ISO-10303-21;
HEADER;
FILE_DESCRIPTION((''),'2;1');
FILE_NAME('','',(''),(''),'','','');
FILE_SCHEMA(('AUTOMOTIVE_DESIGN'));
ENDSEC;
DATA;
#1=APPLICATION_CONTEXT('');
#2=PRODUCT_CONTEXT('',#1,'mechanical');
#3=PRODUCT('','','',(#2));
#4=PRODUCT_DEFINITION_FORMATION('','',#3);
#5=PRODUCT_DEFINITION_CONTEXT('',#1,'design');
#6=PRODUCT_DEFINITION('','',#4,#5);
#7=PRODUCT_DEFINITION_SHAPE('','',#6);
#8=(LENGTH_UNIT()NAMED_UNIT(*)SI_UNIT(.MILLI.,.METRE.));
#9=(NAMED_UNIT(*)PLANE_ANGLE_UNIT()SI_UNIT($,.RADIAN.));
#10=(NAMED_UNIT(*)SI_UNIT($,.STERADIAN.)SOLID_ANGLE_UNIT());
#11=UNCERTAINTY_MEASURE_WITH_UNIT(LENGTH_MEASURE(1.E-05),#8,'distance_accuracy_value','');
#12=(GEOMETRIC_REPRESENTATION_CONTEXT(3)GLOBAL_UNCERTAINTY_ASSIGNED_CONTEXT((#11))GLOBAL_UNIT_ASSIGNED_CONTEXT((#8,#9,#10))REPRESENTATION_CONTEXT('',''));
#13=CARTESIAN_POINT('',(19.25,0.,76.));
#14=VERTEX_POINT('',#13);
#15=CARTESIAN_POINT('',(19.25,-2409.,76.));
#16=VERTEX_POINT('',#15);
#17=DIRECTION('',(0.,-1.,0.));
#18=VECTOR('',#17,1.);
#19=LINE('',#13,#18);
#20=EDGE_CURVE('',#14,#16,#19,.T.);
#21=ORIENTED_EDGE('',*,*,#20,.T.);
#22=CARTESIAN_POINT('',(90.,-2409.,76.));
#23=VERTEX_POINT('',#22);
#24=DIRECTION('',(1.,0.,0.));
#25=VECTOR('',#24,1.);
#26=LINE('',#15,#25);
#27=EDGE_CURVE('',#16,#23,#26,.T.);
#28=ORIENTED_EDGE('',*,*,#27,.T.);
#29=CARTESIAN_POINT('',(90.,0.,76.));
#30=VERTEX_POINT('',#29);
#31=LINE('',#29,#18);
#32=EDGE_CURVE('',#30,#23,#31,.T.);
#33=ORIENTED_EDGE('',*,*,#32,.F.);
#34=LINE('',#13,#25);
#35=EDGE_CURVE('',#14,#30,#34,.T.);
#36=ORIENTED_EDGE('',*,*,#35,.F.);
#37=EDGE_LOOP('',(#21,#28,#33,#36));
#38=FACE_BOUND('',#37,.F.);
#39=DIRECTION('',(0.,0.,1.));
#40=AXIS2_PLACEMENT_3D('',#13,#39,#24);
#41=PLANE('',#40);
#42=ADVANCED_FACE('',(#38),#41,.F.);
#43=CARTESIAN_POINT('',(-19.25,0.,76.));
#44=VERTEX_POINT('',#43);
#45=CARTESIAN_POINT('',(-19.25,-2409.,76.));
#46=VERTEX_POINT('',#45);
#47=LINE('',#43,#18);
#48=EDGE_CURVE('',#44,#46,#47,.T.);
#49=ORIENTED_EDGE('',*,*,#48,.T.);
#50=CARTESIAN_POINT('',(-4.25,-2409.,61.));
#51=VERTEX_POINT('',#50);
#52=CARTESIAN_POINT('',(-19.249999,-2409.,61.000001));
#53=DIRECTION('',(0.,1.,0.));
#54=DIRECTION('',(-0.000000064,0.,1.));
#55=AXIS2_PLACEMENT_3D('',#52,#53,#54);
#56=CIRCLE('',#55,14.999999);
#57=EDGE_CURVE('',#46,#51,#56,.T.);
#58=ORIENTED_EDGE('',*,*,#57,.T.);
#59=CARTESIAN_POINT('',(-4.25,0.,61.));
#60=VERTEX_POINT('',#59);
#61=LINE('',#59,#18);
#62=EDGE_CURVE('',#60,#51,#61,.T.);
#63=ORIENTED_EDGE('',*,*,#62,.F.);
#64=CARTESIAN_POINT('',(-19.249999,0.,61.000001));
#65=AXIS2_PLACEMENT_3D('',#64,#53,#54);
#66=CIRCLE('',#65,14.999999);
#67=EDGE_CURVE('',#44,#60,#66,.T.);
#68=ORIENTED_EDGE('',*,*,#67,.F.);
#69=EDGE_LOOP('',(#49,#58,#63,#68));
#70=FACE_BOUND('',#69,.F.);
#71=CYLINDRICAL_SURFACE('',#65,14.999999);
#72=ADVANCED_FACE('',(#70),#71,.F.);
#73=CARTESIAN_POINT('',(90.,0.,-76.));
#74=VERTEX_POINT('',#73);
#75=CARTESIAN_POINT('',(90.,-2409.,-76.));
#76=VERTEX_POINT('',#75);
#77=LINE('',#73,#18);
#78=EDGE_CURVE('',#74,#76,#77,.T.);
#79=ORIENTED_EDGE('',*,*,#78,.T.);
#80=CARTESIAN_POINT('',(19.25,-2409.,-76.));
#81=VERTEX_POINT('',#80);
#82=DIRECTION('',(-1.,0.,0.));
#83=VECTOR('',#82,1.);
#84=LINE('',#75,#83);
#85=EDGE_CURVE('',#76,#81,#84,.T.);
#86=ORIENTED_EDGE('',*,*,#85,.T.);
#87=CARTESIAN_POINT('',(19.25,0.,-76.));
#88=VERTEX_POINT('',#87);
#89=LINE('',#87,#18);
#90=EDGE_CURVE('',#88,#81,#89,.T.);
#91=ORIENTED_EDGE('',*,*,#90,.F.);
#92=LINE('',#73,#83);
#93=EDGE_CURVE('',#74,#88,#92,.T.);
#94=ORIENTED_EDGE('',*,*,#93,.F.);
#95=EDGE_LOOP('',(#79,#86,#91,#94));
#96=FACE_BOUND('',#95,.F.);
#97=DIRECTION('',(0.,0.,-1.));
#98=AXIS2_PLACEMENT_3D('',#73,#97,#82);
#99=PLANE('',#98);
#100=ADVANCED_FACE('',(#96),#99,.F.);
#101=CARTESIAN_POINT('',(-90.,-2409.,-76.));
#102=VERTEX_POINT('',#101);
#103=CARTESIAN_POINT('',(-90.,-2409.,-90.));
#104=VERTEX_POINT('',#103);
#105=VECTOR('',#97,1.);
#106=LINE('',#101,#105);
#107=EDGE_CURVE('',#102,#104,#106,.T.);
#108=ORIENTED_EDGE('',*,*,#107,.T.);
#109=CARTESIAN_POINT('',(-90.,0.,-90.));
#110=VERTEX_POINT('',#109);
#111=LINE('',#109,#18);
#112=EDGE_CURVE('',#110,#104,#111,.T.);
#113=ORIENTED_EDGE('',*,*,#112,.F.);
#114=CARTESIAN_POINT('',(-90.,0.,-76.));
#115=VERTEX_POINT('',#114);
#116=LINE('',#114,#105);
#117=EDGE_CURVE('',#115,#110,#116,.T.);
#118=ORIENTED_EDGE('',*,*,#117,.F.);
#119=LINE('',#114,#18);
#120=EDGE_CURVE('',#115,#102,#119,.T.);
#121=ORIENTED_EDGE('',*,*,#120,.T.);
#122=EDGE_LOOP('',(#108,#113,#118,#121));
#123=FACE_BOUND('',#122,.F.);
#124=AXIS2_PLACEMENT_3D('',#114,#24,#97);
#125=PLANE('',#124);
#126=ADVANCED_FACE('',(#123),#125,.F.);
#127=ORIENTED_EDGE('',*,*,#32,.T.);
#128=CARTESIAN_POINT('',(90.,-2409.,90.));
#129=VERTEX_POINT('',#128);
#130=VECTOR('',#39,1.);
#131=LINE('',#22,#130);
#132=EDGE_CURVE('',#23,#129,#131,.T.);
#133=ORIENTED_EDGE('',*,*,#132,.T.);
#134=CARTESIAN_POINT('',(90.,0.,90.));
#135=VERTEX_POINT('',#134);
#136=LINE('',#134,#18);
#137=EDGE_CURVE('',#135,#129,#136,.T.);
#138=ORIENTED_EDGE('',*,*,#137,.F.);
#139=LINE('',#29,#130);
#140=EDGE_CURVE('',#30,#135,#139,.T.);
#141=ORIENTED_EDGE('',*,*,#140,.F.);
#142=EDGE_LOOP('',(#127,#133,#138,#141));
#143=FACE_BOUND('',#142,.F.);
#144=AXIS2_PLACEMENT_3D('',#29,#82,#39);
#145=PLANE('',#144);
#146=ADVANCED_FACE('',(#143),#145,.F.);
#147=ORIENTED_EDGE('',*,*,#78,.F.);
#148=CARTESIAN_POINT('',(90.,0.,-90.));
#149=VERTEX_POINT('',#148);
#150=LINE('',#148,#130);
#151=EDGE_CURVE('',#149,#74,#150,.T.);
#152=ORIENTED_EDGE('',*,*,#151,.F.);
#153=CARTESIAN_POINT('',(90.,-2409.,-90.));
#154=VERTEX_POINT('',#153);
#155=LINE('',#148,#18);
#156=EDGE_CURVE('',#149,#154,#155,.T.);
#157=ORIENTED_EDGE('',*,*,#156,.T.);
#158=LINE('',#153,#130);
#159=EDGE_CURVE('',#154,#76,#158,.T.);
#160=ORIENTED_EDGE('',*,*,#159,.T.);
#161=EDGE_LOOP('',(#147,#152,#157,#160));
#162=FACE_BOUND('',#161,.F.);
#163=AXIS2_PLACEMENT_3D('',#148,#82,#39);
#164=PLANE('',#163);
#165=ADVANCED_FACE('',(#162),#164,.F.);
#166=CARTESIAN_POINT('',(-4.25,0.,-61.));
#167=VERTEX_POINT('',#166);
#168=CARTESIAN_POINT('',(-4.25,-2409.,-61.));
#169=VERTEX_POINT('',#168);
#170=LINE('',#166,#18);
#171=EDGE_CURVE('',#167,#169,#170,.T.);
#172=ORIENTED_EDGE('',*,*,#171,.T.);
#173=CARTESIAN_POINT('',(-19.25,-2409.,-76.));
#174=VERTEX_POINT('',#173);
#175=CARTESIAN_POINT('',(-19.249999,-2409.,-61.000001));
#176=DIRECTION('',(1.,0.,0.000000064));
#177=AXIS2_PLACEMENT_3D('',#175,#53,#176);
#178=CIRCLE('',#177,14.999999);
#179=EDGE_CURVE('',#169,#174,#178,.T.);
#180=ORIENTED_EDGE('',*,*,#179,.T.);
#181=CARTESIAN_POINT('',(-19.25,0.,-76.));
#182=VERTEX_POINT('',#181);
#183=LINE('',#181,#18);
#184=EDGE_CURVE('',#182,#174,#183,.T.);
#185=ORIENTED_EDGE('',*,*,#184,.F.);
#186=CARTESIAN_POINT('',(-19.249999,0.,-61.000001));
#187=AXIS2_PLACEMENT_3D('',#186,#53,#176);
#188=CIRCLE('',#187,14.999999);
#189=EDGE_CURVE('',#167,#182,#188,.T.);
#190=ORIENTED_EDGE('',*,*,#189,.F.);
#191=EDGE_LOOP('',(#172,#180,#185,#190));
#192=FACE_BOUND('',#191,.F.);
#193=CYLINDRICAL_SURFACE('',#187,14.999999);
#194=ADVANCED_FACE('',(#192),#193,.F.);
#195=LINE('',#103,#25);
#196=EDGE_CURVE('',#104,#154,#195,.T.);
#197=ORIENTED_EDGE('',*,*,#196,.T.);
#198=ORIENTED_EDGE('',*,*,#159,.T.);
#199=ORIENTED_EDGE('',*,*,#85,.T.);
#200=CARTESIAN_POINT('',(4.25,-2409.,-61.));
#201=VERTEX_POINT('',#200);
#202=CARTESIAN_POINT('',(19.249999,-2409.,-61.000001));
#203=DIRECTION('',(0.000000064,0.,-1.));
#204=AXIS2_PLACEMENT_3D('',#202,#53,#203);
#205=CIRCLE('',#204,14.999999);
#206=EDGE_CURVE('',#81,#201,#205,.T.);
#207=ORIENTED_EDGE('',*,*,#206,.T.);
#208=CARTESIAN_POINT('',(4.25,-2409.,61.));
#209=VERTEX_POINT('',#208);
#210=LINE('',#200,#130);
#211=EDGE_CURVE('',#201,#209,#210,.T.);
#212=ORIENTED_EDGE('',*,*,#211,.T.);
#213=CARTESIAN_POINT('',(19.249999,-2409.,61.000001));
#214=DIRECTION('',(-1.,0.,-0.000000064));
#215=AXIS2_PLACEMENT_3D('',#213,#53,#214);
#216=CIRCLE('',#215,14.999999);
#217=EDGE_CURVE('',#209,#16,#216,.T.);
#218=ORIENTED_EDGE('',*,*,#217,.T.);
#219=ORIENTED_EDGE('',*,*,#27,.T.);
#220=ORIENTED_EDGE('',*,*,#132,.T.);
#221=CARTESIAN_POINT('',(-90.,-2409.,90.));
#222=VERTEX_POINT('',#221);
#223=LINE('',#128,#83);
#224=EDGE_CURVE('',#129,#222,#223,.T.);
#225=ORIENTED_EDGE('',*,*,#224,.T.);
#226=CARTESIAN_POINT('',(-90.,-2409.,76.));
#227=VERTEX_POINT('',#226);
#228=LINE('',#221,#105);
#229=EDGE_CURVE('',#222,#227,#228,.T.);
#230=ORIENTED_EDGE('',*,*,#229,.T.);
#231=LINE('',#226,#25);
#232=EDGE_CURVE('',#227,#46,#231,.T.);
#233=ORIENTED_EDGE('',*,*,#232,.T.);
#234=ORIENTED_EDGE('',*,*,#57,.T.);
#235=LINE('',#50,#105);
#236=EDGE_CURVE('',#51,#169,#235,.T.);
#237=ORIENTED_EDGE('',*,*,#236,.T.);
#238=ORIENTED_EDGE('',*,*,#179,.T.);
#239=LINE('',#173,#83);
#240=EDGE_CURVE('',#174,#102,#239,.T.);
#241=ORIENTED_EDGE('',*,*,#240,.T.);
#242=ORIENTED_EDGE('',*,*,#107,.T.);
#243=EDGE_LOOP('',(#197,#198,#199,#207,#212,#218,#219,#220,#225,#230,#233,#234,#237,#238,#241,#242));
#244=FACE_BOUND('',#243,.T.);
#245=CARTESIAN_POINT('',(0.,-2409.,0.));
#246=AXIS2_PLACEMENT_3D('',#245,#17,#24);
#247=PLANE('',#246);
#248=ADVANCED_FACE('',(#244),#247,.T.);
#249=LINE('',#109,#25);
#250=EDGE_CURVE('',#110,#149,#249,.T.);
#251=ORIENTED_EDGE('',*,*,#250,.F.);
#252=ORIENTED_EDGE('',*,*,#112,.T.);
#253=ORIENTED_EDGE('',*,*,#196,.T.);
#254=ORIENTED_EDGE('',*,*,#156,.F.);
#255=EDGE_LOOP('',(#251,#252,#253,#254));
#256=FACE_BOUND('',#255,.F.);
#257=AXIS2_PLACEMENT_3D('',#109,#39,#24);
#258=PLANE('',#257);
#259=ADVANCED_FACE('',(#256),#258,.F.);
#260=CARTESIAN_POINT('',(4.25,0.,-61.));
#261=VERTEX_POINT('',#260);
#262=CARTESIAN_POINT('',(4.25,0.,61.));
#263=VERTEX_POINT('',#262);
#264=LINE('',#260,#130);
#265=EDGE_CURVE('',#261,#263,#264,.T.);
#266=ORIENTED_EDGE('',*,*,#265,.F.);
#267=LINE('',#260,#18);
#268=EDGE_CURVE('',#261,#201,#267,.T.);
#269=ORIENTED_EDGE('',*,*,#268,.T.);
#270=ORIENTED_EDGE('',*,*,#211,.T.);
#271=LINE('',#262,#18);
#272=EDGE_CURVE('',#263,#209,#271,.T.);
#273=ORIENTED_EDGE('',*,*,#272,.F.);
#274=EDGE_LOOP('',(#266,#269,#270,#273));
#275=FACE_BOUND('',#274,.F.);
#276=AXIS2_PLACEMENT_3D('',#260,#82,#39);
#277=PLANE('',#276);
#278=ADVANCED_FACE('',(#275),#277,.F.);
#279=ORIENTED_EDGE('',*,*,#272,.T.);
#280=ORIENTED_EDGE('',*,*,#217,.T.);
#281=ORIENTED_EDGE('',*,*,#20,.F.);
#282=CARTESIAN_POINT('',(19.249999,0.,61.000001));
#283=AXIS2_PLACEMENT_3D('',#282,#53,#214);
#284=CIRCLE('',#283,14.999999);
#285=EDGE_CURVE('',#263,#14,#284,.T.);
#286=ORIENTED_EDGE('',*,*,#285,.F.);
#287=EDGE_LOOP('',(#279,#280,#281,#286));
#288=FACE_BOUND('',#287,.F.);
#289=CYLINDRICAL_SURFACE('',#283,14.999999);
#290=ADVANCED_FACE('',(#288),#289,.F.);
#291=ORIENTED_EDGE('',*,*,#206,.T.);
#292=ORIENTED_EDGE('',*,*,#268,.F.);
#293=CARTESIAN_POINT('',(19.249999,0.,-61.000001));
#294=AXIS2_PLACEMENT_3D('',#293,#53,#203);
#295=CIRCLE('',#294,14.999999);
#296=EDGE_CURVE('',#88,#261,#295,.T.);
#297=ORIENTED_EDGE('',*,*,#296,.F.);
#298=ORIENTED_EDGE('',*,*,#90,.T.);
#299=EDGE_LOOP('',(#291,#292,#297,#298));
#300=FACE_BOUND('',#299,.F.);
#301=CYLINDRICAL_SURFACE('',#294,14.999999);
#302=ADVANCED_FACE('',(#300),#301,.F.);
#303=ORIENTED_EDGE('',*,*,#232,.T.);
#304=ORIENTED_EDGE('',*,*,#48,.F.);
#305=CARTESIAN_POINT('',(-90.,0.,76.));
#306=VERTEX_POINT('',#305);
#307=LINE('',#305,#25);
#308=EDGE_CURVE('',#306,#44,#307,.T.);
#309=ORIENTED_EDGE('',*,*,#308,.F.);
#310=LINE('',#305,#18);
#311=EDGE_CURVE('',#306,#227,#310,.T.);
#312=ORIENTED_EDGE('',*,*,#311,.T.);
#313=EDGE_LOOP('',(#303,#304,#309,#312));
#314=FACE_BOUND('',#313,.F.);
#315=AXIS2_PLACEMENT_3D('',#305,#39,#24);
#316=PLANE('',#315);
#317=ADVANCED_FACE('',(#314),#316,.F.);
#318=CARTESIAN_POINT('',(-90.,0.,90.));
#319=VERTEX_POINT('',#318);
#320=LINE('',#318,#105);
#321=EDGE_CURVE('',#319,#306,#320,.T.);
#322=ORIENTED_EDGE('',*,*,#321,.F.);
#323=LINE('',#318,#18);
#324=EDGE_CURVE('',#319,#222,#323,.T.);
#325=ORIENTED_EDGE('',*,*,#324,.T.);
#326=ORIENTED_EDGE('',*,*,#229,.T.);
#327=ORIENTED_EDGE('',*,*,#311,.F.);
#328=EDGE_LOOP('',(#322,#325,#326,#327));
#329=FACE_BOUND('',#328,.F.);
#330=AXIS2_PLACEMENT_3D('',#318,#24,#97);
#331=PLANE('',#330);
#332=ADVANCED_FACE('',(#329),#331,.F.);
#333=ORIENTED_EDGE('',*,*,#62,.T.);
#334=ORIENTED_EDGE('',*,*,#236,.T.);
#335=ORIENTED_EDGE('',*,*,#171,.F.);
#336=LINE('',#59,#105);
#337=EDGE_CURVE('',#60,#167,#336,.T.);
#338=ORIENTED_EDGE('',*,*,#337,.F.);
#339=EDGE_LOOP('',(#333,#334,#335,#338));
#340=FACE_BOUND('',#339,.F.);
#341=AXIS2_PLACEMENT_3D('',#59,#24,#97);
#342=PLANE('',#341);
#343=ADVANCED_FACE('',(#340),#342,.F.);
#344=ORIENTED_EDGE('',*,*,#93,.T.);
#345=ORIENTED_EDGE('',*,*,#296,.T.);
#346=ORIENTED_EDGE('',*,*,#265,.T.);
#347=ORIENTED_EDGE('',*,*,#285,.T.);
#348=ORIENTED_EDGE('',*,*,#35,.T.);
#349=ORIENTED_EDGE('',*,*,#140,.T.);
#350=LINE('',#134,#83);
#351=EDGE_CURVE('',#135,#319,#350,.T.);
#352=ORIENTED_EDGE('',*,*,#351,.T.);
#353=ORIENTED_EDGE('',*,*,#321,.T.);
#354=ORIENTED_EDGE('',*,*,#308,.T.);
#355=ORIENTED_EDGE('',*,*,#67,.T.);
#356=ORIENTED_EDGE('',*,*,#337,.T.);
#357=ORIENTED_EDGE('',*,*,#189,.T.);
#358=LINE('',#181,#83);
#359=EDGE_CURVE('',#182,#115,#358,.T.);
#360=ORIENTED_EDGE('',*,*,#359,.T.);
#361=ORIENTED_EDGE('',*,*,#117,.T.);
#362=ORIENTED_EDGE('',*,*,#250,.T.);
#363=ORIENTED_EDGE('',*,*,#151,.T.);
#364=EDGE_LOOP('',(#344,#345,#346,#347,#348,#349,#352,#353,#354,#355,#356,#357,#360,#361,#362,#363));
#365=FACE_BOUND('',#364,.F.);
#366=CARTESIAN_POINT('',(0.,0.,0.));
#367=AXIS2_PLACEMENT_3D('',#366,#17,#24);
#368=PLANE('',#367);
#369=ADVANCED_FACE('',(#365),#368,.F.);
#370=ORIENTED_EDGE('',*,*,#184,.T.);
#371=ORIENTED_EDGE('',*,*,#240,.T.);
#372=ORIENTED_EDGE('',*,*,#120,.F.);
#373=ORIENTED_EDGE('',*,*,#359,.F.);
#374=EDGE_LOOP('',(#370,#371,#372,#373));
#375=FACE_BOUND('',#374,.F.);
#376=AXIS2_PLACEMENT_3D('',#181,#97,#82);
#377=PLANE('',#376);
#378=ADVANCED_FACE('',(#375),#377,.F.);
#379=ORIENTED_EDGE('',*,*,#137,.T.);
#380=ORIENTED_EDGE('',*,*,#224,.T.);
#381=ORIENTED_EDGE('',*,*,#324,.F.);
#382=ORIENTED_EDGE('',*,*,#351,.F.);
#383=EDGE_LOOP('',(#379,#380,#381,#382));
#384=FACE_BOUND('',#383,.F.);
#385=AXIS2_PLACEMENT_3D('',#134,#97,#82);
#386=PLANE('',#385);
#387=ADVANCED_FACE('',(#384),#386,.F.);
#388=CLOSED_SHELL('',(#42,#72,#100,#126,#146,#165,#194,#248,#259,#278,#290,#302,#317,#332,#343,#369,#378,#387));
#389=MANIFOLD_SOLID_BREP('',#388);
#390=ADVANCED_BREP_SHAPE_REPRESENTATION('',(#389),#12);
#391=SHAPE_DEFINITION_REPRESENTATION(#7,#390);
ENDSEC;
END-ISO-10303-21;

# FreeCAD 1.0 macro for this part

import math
import FreeCAD as App
import Part
import Sketcher

V = App.Vector
Q = App.Units.Quantity

doc = App.newDocument("Part")
body = doc.addObject("PartDesign::Body", "Body")

# Sketch on XZ plane
sketch1 = doc.addObject("Sketcher::SketchObject", "Sketch")
body.addObject(sketch1)
sketch1.AttachmentSupport = (doc.XZ_Plane, [""])
sketch1.MapMode = "FlatFace"
sketch1.addGeometry([
    Part.LineSegment(V(-90, -90, 0), V(90, -90, 0)),  # 0
    Part.LineSegment(V(90, -90, 0), V(90, -76, 0)),  # 1
    Part.LineSegment(V(90, -76, 0), V(19.25, -76, 0)),  # 2
    Part.ArcOfCircle(Part.Circle(V(19.249999, -61.000001, 0), V(0, 0, 1), 14.999999), math.radians(179.999996), math.radians(270.000004)),  # 3
    Part.LineSegment(V(4.25, -61, 0), V(4.25, 61, 0)),  # 4
    Part.ArcOfCircle(Part.Circle(V(19.249999, 61.000001, 0), V(0, 0, 1), 14.999999), math.radians(89.999996), math.radians(180.000004)),  # 5
    Part.LineSegment(V(19.25, 76, 0), V(90, 76, 0)),  # 6
    Part.LineSegment(V(90, 76, 0), V(90, 90, 0)),  # 7
    Part.LineSegment(V(90, 90, 0), V(-90, 90, 0)),  # 8
    Part.LineSegment(V(-90, 90, 0), V(-90, 76, 0)),  # 9
    Part.LineSegment(V(-90, 76, 0), V(-19.25, 76, 0)),  # 10
    Part.ArcOfCircle(Part.Circle(V(-19.249999, 61.000001, 0), V(0, 0, 1), 14.999999), math.radians(-0.000004), math.radians(90.000004)),  # 11
    Part.LineSegment(V(-4.25, 61, 0), V(-4.25, -61, 0)),  # 12
    Part.ArcOfCircle(Part.Circle(V(-19.249999, -61.000001, 0), V(0, 0, 1), 14.999999), math.radians(-90.000004), math.radians(0.000004)),  # 13
    Part.LineSegment(V(-19.25, -76, 0), V(-90, -76, 0)),  # 14
    Part.LineSegment(V(-90, -76, 0), V(-90, -90, 0)),  # 15
], False)
sketch1.addConstraint([
    Sketcher.Constraint("Coincident", 0, 2, 1, 1),
    Sketcher.Constraint("Coincident", 1, 2, 2, 1),
    Sketcher.Constraint("Tangent", 2, 2, 3, 2),
    Sketcher.Constraint("Tangent", 3, 1, 4, 1),
    Sketcher.Constraint("Tangent", 4, 2, 5, 2),
    Sketcher.Constraint("Tangent", 5, 1, 6, 1),
    Sketcher.Constraint("Coincident", 6, 2, 7, 1),
    Sketcher.Constraint("Coincident", 7, 2, 8, 1),
    Sketcher.Constraint("Coincident", 8, 2, 9, 1),
    Sketcher.Constraint("Coincident", 9, 2, 10, 1),
    Sketcher.Constraint("Tangent", 10, 2, 11, 2),
    Sketcher.Constraint("Tangent", 11, 1, 12, 1),
    Sketcher.Constraint("Tangent", 12, 2, 13, 2),
    Sketcher.Constraint("Tangent", 13, 1, 14, 1),
    Sketcher.Constraint("Coincident", 14, 2, 15, 1),
    Sketcher.Constraint("Coincident", 15, 2, 0, 1),
    Sketcher.Constraint("Horizontal", 0),
    Sketcher.Constraint("Vertical", 1),
    Sketcher.Constraint("Horizontal", 2),
    Sketcher.Constraint("Vertical", 4),
    Sketcher.Constraint("Horizontal", 6),
    Sketcher.Constraint("Vertical", 7),
    Sketcher.Constraint("Horizontal", 8),
    Sketcher.Constraint("Vertical", 9),
    Sketcher.Constraint("Horizontal", 10),
    Sketcher.Constraint("Vertical", 12),
    Sketcher.Constraint("Horizontal", 14),
    Sketcher.Constraint("Vertical", 15),
    Sketcher.Constraint("Equal", 3, 5),
    Sketcher.Constraint("Equal", 5, 11),
    Sketcher.Constraint("Equal", 11, 13),
    Sketcher.Constraint("Symmetric", 3, 3, 11, 3, -1, 1),
    Sketcher.Constraint("Symmetric", 0, 2, 8, 2, -1, 1),
    Sketcher.Constraint("Symmetric", 6, 2, 14, 2, -1, 1),
    Sketcher.Constraint("Symmetric", 6, 2, 9, 2, -2),
    Sketcher.Constraint("Radius", 3, Q("14.999999 mm")),
    Sketcher.Constraint("DistanceX", 0, 1, 0, 2, Q("180 mm")),
    Sketcher.Constraint("DistanceY", 1, 1, 1, 2, Q("14 mm")),
    Sketcher.Constraint("DistanceY", 4, 1, 4, 2, Q("122 mm")),
    Sketcher.Constraint("DistanceX", 2, 2, 2, 1, Q("70.75 mm")),
])
pad1 = doc.addObject("PartDesign::Pad", "Pad")
body.addObject(pad1)
pad1.Profile = sketch1
pad1.Length = 2409

doc.recompute()
